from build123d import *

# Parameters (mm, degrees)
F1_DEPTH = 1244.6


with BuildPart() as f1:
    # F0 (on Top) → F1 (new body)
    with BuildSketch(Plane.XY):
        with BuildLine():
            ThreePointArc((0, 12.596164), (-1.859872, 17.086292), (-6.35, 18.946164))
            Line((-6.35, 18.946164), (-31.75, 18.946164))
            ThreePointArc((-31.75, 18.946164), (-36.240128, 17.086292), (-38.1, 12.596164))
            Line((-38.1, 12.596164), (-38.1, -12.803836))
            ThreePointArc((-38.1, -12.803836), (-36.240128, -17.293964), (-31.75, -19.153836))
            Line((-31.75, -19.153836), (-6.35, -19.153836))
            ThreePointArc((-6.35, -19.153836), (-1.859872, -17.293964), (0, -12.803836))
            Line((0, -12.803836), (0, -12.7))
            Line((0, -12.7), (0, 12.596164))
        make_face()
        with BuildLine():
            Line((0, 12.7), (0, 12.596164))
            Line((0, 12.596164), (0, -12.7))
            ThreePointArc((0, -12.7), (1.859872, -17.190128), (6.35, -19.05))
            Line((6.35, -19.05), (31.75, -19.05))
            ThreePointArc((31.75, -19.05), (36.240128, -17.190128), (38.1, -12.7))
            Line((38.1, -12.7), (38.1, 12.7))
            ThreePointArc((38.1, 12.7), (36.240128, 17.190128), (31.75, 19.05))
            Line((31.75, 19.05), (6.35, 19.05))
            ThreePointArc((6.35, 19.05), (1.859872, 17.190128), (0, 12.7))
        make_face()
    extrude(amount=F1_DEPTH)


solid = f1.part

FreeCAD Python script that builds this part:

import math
import FreeCAD as App
import Part
import Sketcher
from FreeCAD import Vector
Q = App.Units.Quantity

doc = App.newDocument("Part")
body = doc.addObject("PartDesign::Body", "Body")

sketch1 = body.newObject("Sketcher::SketchObject", "Sketch")
sketch1.AttachmentSupport = (doc.getObject("XY_Plane"), [""])
sketch1.MapMode = "FlatFace"
sketch1.addGeometry([
    Part.ArcOfCircle(Part.Circle(Vector(-6.35, 12.6, 0), Vector(0, 0, 1), 6.35), math.radians(0), math.radians(90)),
    Part.LineSegment(Vector(-6.35, 18.95, 0), Vector(-31.75, 18.95, 0)),
    Part.ArcOfCircle(Part.Circle(Vector(-31.75, 12.6, 0), Vector(0, 0, 1), 6.35), math.radians(90), math.radians(180)),
    Part.LineSegment(Vector(-38.1, 12.6, 0), Vector(-38.1, -12.8, 0)),
    Part.ArcOfCircle(Part.Circle(Vector(-31.75, -12.8, 0), Vector(0, 0, 1), 6.35), math.radians(-180), math.radians(-90)),
    Part.LineSegment(Vector(-31.75, -19.15, 0), Vector(-6.35, -19.15, 0)),
    Part.ArcOfCircle(Part.Circle(Vector(-6.35, -12.8, 0), Vector(0, 0, 1), 6.35), math.radians(-90), math.radians(0)),
    Part.LineSegment(Vector(0, -12.8, 0), Vector(0, -12.7, 0)),
    Part.ArcOfCircle(Part.Circle(Vector(6.35, -12.7, 0), Vector(0, 0, 1), 6.35), math.radians(-180), math.radians(-90)),
    Part.LineSegment(Vector(6.35, -19.05, 0), Vector(31.75, -19.05, 0)),
    Part.ArcOfCircle(Part.Circle(Vector(31.75, -12.7, 0), Vector(0, 0, 1), 6.35), math.radians(-90), math.radians(0)),
    Part.LineSegment(Vector(38.1, -12.7, 0), Vector(38.1, 12.7, 0)),
    Part.ArcOfCircle(Part.Circle(Vector(31.75, 12.7, 0), Vector(0, 0, 1), 6.35), math.radians(0), math.radians(90)),
    Part.LineSegment(Vector(31.75, 19.05, 0), Vector(6.35, 19.05, 0)),
    Part.ArcOfCircle(Part.Circle(Vector(6.35, 12.7, 0), Vector(0, 0, 1), 6.35), math.radians(90), math.radians(180)),
    Part.LineSegment(Vector(0, 12.7, 0), Vector(0, 12.6, 0)),
], False)
sketch1.addConstraint([
    Sketcher.Constraint("Tangent", 0, 2, 1, 1),
    Sketcher.Constraint("Tangent", 1, 2, 2, 1),
    Sketcher.Constraint("Tangent", 2, 2, 3, 1),
    Sketcher.Constraint("Tangent", 3, 2, 4, 1),
    Sketcher.Constraint("Tangent", 4, 2, 5, 1),
    Sketcher.Constraint("Tangent", 5, 2, 6, 1),
    Sketcher.Constraint("Tangent", 6, 2, 7, 1),
    Sketcher.Constraint("Tangent", 7, 2, 8, 1),
    Sketcher.Constraint("Tangent", 8, 2, 9, 1),
    Sketcher.Constraint("Tangent", 9, 2, 10, 1),
    Sketcher.Constraint("Tangent", 10, 2, 11, 1),
    Sketcher.Constraint("Tangent", 11, 2, 12, 1),
    Sketcher.Constraint("Tangent", 12, 2, 13, 1),
    Sketcher.Constraint("Tangent", 13, 2, 14, 1),
    Sketcher.Constraint("Tangent", 14, 2, 15, 1),
    Sketcher.Constraint("Tangent", 15, 2, 0, 1),
    Sketcher.Constraint("Horizontal", 1),
    Sketcher.Constraint("Vertical", 3),
    Sketcher.Constraint("Horizontal", 5),
    Sketcher.Constraint("Vertical", 7),
    Sketcher.Constraint("Horizontal", 9),
    Sketcher.Constraint("Vertical", 11),
    Sketcher.Constraint("Horizontal", 13),
    Sketcher.Constraint("Vertical", 15),
    Sketcher.Constraint("Equal", 0, 2),
    Sketcher.Constraint("Equal", 2, 4),
    Sketcher.Constraint("Equal", 4, 6),
    Sketcher.Constraint("Equal", 6, 8),
    Sketcher.Constraint("Equal", 8, 10),
    Sketcher.Constraint("Equal", 10, 12),
    Sketcher.Constraint("Equal", 12, 14),
    Sketcher.Constraint("Symmetric", 7, 2, 14, 2, -1, 1),
    Sketcher.Constraint("PointOnObject", 6, 2, -2),
    Sketcher.Constraint("Equal", 5, 9),
    Sketcher.Constraint("Equal", 13, 3),
    Sketcher.Constraint("Equal", 3, 11),
    Sketcher.Constraint("DistanceX", 1, 2, 1, 1, Q("1 in")),
    Sketcher.Constraint("Radius", 0, Q("0.25 in")),
    Sketcher.Constraint("DistanceY", 7, 1, 7, 2, Q("0.103836 mm")),
])
pad1 = body.newObject("PartDesign::Pad", "Pad")
pad1.Profile = sketch1
pad1.Length = Q("49 in")

doc.recompute()
